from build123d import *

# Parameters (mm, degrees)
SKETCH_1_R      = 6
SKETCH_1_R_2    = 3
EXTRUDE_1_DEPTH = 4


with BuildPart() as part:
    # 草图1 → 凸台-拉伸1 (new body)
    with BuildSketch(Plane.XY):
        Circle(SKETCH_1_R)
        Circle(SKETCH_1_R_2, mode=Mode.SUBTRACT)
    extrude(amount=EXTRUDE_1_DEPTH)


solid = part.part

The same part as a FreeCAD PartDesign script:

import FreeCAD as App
import Part
import Sketcher

doc = App.newDocument("Part")
body = doc.addObject("PartDesign::Body", "Body")

# Sketch on XY plane
sketch1 = body.newObject("Sketcher::SketchObject", "Sketch")
sketch1.AttachmentSupport = (doc.getObject("XY_Plane"), [""])
sketch1.MapMode = "FlatFace"
sketch1.addGeometry([
    Part.Circle(App.Vector(0, 0, 0), App.Vector(0, 0, 1), 6),
    Part.Circle(App.Vector(0, 0, 0), App.Vector(0, 0, 1), 3),
], False)
sketch1.addConstraint([
    Sketcher.Constraint("Coincident", 0, 3, -1, 1),
    Sketcher.Constraint("Coincident", 1, 3, -1, 1),
    Sketcher.Constraint("Diameter", 0, 12.0),
    Sketcher.Constraint("Diameter", 1, 6.0),
])
pad1 = body.newObject("PartDesign::Pad", "Pad")
pad1.Profile = sketch1
pad1.Length = 4

doc.recompute()
